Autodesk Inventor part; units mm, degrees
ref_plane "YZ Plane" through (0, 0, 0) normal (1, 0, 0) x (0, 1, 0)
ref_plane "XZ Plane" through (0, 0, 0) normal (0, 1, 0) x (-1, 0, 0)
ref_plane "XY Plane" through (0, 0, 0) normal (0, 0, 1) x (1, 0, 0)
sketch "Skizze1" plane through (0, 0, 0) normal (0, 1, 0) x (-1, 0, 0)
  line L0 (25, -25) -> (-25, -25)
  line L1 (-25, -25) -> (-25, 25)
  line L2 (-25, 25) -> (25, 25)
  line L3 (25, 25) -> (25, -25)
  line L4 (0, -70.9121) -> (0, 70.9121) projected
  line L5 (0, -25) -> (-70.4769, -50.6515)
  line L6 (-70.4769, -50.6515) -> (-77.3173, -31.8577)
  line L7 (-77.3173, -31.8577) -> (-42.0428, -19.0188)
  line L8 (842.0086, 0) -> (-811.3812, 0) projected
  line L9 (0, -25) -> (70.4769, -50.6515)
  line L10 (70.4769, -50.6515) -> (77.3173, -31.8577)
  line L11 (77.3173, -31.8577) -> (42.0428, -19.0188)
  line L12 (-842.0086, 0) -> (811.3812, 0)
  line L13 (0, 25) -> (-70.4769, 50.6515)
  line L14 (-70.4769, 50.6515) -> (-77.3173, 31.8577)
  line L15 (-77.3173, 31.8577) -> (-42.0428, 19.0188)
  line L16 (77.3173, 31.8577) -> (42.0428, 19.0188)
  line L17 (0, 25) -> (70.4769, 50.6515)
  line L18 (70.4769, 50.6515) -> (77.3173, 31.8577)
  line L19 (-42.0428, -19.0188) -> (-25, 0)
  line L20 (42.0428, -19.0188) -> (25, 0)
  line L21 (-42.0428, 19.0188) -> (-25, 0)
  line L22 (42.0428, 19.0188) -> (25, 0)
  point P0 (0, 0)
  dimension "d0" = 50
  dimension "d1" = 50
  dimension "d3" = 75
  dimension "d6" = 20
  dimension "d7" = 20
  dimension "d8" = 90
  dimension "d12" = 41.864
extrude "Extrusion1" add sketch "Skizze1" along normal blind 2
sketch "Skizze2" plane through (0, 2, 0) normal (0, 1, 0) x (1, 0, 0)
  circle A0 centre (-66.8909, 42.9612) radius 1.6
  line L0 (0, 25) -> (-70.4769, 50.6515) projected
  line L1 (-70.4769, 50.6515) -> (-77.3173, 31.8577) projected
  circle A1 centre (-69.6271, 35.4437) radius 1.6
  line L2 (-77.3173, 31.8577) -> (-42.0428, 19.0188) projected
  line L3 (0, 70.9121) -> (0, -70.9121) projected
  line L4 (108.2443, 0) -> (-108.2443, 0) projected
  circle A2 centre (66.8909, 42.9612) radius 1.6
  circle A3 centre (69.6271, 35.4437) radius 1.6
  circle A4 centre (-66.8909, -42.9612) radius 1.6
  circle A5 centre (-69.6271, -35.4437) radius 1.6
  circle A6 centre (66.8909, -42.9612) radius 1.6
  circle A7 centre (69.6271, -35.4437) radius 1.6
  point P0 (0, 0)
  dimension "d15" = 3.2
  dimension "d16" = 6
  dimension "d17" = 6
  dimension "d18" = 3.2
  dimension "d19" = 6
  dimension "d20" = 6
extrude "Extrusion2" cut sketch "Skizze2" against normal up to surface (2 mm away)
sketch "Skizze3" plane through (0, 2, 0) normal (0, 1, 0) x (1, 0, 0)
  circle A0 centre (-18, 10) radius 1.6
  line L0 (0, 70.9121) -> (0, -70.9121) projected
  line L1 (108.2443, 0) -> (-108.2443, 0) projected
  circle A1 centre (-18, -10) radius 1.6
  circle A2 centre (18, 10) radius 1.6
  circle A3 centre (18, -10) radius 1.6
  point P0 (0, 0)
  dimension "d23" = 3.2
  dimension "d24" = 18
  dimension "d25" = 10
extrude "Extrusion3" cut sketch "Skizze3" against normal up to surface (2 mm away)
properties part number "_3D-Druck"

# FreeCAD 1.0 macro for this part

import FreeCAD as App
import Part
import Sketcher
Q = App.Units.Quantity

doc = App.newDocument("Part")
params = doc.addObject("Spreadsheet::Sheet", "Params")
for row, (alias, value) in enumerate([
    ("sketch1_length", "20 mm"),
    ("sketch1_length2", "75 mm"),
    ("pad1_length", "2 mm"),
    ("sketch2_diameter", "3.2 mm"),
    ("pocket1_length", "2 mm"),
    ("sketch3_diameter", "3.2 mm"),
    ("pocket2_length", "2 mm"),
], start=1):
    params.set(f"A{row}", alias)
    params.set(f"B{row}", "=" + value)
    params.setAlias(f"B{row}", alias)

body = doc.addObject("PartDesign::Body", "Body")

sketch1 = body.newObject("Sketcher::SketchObject", "Sketch")
sketch1.AttachmentSupport = (doc.getObject("XZ_Plane"), [""])
sketch1.MapMode = "FlatFace"
sketch1.addGeometry(Part.LineSegment(App.Vector(-42, -19, 0), App.Vector(-25, 0, 0)), False)
sketch1.addGeometry(Part.LineSegment(App.Vector(-25, 0, 0), App.Vector(-42, 19, 0)), False)
sketch1.addGeometry(Part.LineSegment(App.Vector(-42, 19, 0), App.Vector(-77, 32, 0)), False)
sketch1.addGeometry(Part.LineSegment(App.Vector(-77, 32, 0), App.Vector(-70, 51, 0)), False)
sketch1.addGeometry(Part.LineSegment(App.Vector(-70, 51, 0), App.Vector(0, 25, 0)), False)
sketch1.addGeometry(Part.LineSegment(App.Vector(0, 25, 0), App.Vector(70, 51, 0)), False)
sketch1.addGeometry(Part.LineSegment(App.Vector(70, 51, 0), App.Vector(77, 32, 0)), False)
sketch1.addGeometry(Part.LineSegment(App.Vector(77, 32, 0), App.Vector(42, 19, 0)), False)
sketch1.addGeometry(Part.LineSegment(App.Vector(42, 19, 0), App.Vector(25, 0, 0)), False)
sketch1.addGeometry(Part.LineSegment(App.Vector(25, 0, 0), App.Vector(42, -19, 0)), False)
sketch1.addGeometry(Part.LineSegment(App.Vector(42, -19, 0), App.Vector(77, -32, 0)), False)
sketch1.addGeometry(Part.LineSegment(App.Vector(77, -32, 0), App.Vector(70, -51, 0)), False)
sketch1.addGeometry(Part.LineSegment(App.Vector(70, -51, 0), App.Vector(0, -25, 0)), False)
sketch1.addGeometry(Part.LineSegment(App.Vector(0, -25, 0), App.Vector(-70, -51, 0)), False)
sketch1.addGeometry(Part.LineSegment(App.Vector(-70, -51, 0), App.Vector(-77, -32, 0)), False)
sketch1.addGeometry(Part.LineSegment(App.Vector(-77, -32, 0), App.Vector(-42, -19, 0)), False)
sketch1.addConstraint(Sketcher.Constraint("Coincident", 0, 2, 1, 1))
sketch1.addConstraint(Sketcher.Constraint("Coincident", 1, 2, 2, 1))
sketch1.addConstraint(Sketcher.Constraint("Coincident", 2, 2, 3, 1))
sketch1.addConstraint(Sketcher.Constraint("Coincident", 3, 2, 4, 1))
sketch1.addConstraint(Sketcher.Constraint("Coincident", 4, 2, 5, 1))
sketch1.addConstraint(Sketcher.Constraint("Coincident", 5, 2, 6, 1))
sketch1.addConstraint(Sketcher.Constraint("Coincident", 6, 2, 7, 1))
sketch1.addConstraint(Sketcher.Constraint("Coincident", 7, 2, 8, 1))
sketch1.addConstraint(Sketcher.Constraint("Coincident", 8, 2, 9, 1))
sketch1.addConstraint(Sketcher.Constraint("Coincident", 9, 2, 10, 1))
sketch1.addConstraint(Sketcher.Constraint("Coincident", 10, 2, 11, 1))
sketch1.addConstraint(Sketcher.Constraint("Coincident", 11, 2, 12, 1))
sketch1.addConstraint(Sketcher.Constraint("Coincident", 12, 2, 13, 1))
sketch1.addConstraint(Sketcher.Constraint("Coincident", 13, 2, 14, 1))
sketch1.addConstraint(Sketcher.Constraint("Coincident", 14, 2, 15, 1))
sketch1.addConstraint(Sketcher.Constraint("Coincident", 15, 2, 0, 1))
sketch1.addConstraint(Sketcher.Constraint("Symmetric", 0, 2, 8, 2, -1, 1))
sketch1.addConstraint(Sketcher.Constraint("Symmetric", 1, 2, 9, 2, -1, 1))
sketch1.addConstraint(Sketcher.Constraint("Symmetric", 2, 2, 10, 2, -1, 1))
sketch1.addConstraint(Sketcher.Constraint("Symmetric", 3, 2, 11, 2, -1, 1))
sketch1.addConstraint(Sketcher.Constraint("Symmetric", 4, 2, 12, 2, -1, 1))
sketch1.addConstraint(Sketcher.Constraint("Symmetric", 5, 2, 13, 2, -1, 1))
sketch1.addConstraint(Sketcher.Constraint("Symmetric", 6, 2, 14, 2, -1, 1))
sketch1.addConstraint(Sketcher.Constraint("Symmetric", 7, 2, 15, 2, -1, 1))
sketch1.addConstraint(Sketcher.Constraint("Symmetric", 3, 2, 5, 2, -2))
sketch1.addConstraint(Sketcher.Constraint("Symmetric", 2, 2, 6, 2, -2))
sketch1.addConstraint(Sketcher.Constraint("Symmetric", 1, 2, 7, 2, -2))
sketch1.addConstraint(Sketcher.Constraint("PointOnObject", 0, 2, -1))
sketch1.addConstraint(Sketcher.Constraint("PointOnObject", 4, 2, -2))
sketch1.addConstraint(Sketcher.Constraint("Perpendicular", 2, 3))
sketch1.addConstraint(Sketcher.Constraint("Perpendicular", 3, 4))
sketch1.addConstraint(Sketcher.Constraint("Angle", 4, Q("-20 deg")))
sketch1.addConstraint(Sketcher.Constraint("Distance", 3, 20.0))
sketch1.addConstraint(Sketcher.Constraint("Distance", 4, 75.0))
sketch1.addConstraint(Sketcher.Constraint("DistanceX", 0, 2, 8, 2, 50.0))
sketch1.addConstraint(Sketcher.Constraint("DistanceY", 12, 2, 4, 2, 50.0))
sketch1.addConstraint(Sketcher.Constraint("DistanceX", 1, 2, 6, 2, 119.36))
sketch1.setExpression("Constraints[32]", "Params.sketch1_length")
sketch1.setExpression("Constraints[33]", "Params.sketch1_length2")
pad1 = body.newObject("PartDesign::Pad", "Pad")
pad1.Profile = sketch1
pad1.setExpression("Length", "Params.pad1_length")
pad1.Reversed = True

sketch2 = body.newObject("Sketcher::SketchObject", "Sketch001")
sketch2.AttachmentSupport = (doc.getObject("XZ_Plane"), [""])
sketch2.MapMode = "FlatFace"
sketch2.AttachmentOffset = App.Placement(App.Vector(0, 0, -2), App.Rotation())
sketch2.addGeometry(Part.Circle(App.Vector(-66.9, -43, 0), App.Vector(0, 0, 1), 1.6), False)
sketch2.addGeometry(Part.Circle(App.Vector(-69.6, -35.4, 0), App.Vector(0, 0, 1), 1.6), False)
sketch2.addGeometry(Part.Circle(App.Vector(66.9, -43, 0), App.Vector(0, 0, 1), 1.6), False)
sketch2.addGeometry(Part.Circle(App.Vector(69.6, -35.4, 0), App.Vector(0, 0, 1), 1.6), False)
sketch2.addGeometry(Part.Circle(App.Vector(-66.9, 43, 0), App.Vector(0, 0, 1), 1.6), False)
sketch2.addGeometry(Part.Circle(App.Vector(-69.6, 35.4, 0), App.Vector(0, 0, 1), 1.6), False)
sketch2.addGeometry(Part.Circle(App.Vector(66.9, 43, 0), App.Vector(0, 0, 1), 1.6), False)
sketch2.addGeometry(Part.Circle(App.Vector(69.6, 35.4, 0), App.Vector(0, 0, 1), 1.6), False)
sketch2.addConstraint(Sketcher.Constraint("Equal", 0, 1))
sketch2.addConstraint(Sketcher.Constraint("Equal", 1, 2))
sketch2.addConstraint(Sketcher.Constraint("Equal", 2, 3))
sketch2.addConstraint(Sketcher.Constraint("Equal", 3, 4))
sketch2.addConstraint(Sketcher.Constraint("Equal", 4, 5))
sketch2.addConstraint(Sketcher.Constraint("Equal", 5, 6))
sketch2.addConstraint(Sketcher.Constraint("Equal", 6, 7))
sketch2.addConstraint(Sketcher.Constraint("Symmetric", 2, 3, 4, 3, -1, 1))
sketch2.addConstraint(Sketcher.Constraint("Symmetric", 3, 3, 5, 3, -1, 1))
sketch2.addConstraint(Sketcher.Constraint("Symmetric", 0, 3, 6, 3, -1, 1))
sketch2.addConstraint(Sketcher.Constraint("Symmetric", 1, 3, 7, 3, -1, 1))
sketch2.addConstraint(Sketcher.Constraint("Symmetric", 0, 3, 2, 3, -2))
sketch2.addConstraint(Sketcher.Constraint("Symmetric", 1, 3, 3, 3, -2))
sketch2.addConstraint(Sketcher.Constraint("Diameter", 0, 3.2))
sketch2.addConstraint(Sketcher.Constraint("DistanceX", 0, 3, -1, 1, 66.891))
sketch2.addConstraint(Sketcher.Constraint("DistanceX", 1, 3, -1, 1, 69.627))
sketch2.addConstraint(Sketcher.Constraint("DistanceY", 1, 3, 4, 3, 78.405))
sketch2.addConstraint(Sketcher.Constraint("DistanceY", 0, 3, -1, 1, 42.9612))
sketch2.setExpression("Constraints[13]", "Params.sketch2_diameter")
pocket1 = body.newObject("PartDesign::Pocket", "Pocket")
pocket1.Profile = sketch2
pocket1.setExpression("Length", "Params.pocket1_length")
pocket1.Reversed = True

sketch3 = body.newObject("Sketcher::SketchObject", "Sketch002")
sketch3.AttachmentSupport = (doc.getObject("XZ_Plane"), [""])
sketch3.MapMode = "FlatFace"
sketch3.AttachmentOffset = App.Placement(App.Vector(0, 0, -2), App.Rotation())
sketch3.addGeometry(Part.Circle(App.Vector(-18, -10, 0), App.Vector(0, 0, 1), 1.6), False)
sketch3.addGeometry(Part.Circle(App.Vector(-18, 10, 0), App.Vector(0, 0, 1), 1.6), False)
sketch3.addGeometry(Part.Circle(App.Vector(18, -10, 0), App.Vector(0, 0, 1), 1.6), False)
sketch3.addGeometry(Part.Circle(App.Vector(18, 10, 0), App.Vector(0, 0, 1), 1.6), False)
sketch3.addConstraint(Sketcher.Constraint("Equal", 0, 1))
sketch3.addConstraint(Sketcher.Constraint("Equal", 1, 2))
sketch3.addConstraint(Sketcher.Constraint("Equal", 2, 3))
sketch3.addConstraint(Sketcher.Constraint("Symmetric", 1, 3, 2, 3, -1, 1))
sketch3.addConstraint(Sketcher.Constraint("Symmetric", 0, 3, 3, 3, -1, 1))
sketch3.addConstraint(Sketcher.Constraint("Symmetric", 0, 3, 2, 3, -2))
sketch3.addConstraint(Sketcher.Constraint("Diameter", 0, 3.2))
sketch3.addConstraint(Sketcher.Constraint("DistanceX", 0, 3, -1, 1, 18.0))
sketch3.addConstraint(Sketcher.Constraint("DistanceY", 0, 3, -1, 1, 10.0))
sketch3.setExpression("Constraints[6]", "Params.sketch3_diameter")
pocket2 = body.newObject("PartDesign::Pocket", "Pocket001")
pocket2.Profile = sketch3
pocket2.setExpression("Length", "Params.pocket2_length")
pocket2.Reversed = True

doc.recompute()
